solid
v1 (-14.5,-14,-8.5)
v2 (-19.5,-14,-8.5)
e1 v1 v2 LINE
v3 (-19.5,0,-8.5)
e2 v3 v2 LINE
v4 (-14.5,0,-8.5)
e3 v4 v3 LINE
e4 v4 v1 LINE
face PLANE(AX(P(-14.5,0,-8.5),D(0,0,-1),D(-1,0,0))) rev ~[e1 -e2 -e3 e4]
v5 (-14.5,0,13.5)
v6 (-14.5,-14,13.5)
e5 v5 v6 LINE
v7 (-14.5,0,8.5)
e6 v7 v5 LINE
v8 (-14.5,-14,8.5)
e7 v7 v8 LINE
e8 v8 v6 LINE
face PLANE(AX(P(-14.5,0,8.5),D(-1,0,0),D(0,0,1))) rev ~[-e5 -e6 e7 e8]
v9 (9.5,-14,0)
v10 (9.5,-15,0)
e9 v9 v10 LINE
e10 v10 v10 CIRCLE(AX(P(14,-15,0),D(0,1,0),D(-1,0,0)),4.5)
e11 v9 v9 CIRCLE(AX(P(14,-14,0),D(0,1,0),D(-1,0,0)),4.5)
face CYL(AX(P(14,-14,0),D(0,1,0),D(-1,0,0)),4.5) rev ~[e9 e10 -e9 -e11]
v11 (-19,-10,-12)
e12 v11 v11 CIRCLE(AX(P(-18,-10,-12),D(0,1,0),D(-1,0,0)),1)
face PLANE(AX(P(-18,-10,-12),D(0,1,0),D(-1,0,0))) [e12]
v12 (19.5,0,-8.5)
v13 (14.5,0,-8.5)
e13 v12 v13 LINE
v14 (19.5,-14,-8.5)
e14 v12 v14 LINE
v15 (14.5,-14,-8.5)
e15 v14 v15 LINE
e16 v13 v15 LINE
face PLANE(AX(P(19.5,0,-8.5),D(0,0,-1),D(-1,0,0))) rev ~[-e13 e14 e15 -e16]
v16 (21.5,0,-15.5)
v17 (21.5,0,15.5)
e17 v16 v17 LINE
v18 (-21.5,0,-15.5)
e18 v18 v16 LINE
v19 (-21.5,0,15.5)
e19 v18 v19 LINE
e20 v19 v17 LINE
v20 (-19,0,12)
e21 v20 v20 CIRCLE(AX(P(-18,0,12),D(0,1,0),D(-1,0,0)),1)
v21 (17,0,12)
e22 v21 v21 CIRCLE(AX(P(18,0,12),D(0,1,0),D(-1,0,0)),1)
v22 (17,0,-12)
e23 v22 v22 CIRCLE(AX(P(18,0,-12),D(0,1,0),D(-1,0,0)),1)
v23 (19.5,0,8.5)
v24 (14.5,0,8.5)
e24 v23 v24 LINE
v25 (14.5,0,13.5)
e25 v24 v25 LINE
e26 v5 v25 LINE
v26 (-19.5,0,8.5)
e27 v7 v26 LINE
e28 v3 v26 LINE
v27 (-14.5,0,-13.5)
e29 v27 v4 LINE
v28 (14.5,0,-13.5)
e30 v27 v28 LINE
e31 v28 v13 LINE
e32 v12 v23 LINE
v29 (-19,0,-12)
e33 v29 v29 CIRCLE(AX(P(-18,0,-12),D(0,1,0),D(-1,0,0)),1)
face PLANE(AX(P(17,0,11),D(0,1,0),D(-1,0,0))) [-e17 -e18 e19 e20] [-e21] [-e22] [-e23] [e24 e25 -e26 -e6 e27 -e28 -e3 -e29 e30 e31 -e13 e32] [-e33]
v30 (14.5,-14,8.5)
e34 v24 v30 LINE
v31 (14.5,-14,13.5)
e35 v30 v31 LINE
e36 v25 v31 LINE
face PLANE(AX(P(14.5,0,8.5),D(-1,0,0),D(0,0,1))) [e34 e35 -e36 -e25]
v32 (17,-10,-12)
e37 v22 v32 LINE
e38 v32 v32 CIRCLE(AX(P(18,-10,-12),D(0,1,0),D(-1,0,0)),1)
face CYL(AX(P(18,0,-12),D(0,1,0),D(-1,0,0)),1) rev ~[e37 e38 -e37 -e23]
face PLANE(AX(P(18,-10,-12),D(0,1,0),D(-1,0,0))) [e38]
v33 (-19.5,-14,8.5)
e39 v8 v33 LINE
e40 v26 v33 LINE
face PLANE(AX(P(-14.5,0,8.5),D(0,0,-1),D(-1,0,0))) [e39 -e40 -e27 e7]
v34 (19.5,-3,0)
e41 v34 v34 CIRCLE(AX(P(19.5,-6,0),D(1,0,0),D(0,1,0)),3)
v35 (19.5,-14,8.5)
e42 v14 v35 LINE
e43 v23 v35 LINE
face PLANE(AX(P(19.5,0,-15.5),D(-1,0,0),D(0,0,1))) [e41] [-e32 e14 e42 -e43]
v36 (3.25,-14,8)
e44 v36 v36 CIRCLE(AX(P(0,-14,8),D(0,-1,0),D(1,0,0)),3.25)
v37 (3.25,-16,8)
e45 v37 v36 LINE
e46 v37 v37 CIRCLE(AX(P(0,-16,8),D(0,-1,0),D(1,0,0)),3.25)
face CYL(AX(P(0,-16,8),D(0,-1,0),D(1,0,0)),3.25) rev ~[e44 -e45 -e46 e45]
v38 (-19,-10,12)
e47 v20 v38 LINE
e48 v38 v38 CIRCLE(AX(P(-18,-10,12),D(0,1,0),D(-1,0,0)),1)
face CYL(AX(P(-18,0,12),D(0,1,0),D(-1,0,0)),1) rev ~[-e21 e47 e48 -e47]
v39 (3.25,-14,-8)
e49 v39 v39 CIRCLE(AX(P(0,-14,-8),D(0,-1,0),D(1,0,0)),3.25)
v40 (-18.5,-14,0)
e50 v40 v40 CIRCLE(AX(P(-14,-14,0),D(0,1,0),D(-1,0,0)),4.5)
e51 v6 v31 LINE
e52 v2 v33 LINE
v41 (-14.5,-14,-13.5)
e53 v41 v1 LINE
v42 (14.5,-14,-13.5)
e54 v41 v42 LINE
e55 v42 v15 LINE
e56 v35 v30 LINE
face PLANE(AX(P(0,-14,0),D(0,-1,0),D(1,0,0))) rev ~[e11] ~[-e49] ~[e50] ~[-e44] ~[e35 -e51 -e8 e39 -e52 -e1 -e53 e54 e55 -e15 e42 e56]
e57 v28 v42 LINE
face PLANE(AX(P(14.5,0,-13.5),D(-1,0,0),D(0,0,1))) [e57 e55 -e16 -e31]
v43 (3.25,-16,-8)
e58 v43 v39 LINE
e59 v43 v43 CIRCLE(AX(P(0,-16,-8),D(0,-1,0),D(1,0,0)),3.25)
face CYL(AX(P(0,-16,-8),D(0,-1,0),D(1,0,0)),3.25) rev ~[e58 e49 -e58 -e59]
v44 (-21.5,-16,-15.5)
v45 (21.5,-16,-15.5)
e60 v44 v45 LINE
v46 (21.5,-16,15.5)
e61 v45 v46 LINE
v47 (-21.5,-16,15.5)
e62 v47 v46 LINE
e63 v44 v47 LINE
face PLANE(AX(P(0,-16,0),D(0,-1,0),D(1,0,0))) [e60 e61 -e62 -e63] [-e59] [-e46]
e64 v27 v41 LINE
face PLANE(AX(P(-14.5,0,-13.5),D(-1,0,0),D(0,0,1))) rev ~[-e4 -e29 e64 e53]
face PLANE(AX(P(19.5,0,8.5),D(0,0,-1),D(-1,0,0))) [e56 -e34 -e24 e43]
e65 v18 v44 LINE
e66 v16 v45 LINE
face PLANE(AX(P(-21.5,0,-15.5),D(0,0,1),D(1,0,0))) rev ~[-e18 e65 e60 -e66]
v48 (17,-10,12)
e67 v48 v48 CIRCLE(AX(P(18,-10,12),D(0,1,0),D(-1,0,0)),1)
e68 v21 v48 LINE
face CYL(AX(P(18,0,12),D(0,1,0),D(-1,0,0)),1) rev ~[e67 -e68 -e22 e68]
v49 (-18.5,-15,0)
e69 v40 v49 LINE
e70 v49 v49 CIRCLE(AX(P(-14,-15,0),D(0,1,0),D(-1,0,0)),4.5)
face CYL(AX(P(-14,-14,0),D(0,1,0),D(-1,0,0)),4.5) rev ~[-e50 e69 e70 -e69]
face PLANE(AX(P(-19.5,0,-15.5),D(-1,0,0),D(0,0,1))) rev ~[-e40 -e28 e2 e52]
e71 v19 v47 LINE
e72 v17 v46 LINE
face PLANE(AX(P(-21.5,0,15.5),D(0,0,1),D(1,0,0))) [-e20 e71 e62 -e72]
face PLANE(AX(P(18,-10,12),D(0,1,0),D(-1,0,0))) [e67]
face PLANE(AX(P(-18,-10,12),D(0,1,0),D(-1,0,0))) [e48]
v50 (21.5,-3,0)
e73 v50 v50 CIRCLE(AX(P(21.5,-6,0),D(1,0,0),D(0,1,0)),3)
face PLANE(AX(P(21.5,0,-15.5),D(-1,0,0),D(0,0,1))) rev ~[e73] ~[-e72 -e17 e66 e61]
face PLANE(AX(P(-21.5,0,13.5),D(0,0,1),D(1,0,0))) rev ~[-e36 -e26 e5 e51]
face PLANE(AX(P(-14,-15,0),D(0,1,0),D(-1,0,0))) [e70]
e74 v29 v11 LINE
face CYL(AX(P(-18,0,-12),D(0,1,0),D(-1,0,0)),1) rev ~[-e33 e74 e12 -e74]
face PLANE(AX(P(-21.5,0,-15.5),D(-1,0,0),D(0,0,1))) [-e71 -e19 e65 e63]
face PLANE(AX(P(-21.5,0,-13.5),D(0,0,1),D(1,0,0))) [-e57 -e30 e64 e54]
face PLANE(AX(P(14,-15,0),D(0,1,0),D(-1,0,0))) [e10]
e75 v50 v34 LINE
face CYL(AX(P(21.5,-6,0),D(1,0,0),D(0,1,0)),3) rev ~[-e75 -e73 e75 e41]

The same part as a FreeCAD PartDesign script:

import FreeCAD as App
import Part
import Sketcher

V = App.Vector


def faces_at(feature, points):
    """Names of the faces that lie closest to the given points."""
    faces = feature.Shape.Faces
    near = lambda p: min(range(len(faces)), key=lambda i: faces[i].distToShape(Part.Vertex(*p))[0])
    return sorted({f"Face{near(p) + 1}" for p in points})

doc = App.newDocument("Part")
body = doc.addObject("PartDesign::Body", "Body")

# Sketch on XZ plane
sketch1 = doc.addObject("Sketcher::SketchObject", "Sketch")
body.addObject(sketch1)
sketch1.AttachmentSupport = (doc.XZ_Plane, [""])
sketch1.MapMode = "FlatFace"
sketch1.addGeometry([
    Part.LineSegment(V(-21.5, 15.5, 0), V(-21.5, -15.5, 0)),
    Part.LineSegment(V(-21.5, -15.5, 0), V(21.5, -15.5, 0)),
    Part.LineSegment(V(21.5, -15.5, 0), V(21.5, 15.5, 0)),
    Part.LineSegment(V(21.5, 15.5, 0), V(-21.5, 15.5, 0)),
], False)
sketch1.addConstraint([
    Sketcher.Constraint("Coincident", 0, 2, 1, 1),
    Sketcher.Constraint("Coincident", 1, 2, 2, 1),
    Sketcher.Constraint("Coincident", 2, 2, 3, 1),
    Sketcher.Constraint("Coincident", 3, 2, 0, 1),
    Sketcher.Constraint("Vertical", 0),
    Sketcher.Constraint("Horizontal", 1),
    Sketcher.Constraint("Vertical", 2),
    Sketcher.Constraint("Horizontal", 3),
    Sketcher.Constraint("Symmetric", 0, 2, 2, 2, -1, 1),
    Sketcher.Constraint("DistanceX", 1, 1, 1, 2, 43.0),
    Sketcher.Constraint("DistanceY", 0, 2, 0, 1, 31.0),
])
pad1 = doc.addObject("PartDesign::Pad", "Pad")
body.addObject(pad1)
pad1.Profile = sketch1
pad1.Length = 16
doc.recompute()

thickness = doc.addObject("PartDesign::Thickness", "Thickness")
body.addObject(thickness)
thickness.Base = (pad1, faces_at(pad1, [(0, 0, 0)]))
thickness.Value = 2
thickness.Reversed = True
thickness.Join = "Arc"

# Sketch on XZ plane
sketch2 = doc.addObject("Sketcher::SketchObject", "Sketch001")
body.addObject(sketch2)
sketch2.AttachmentSupport = (doc.XZ_Plane, [""])
sketch2.MapMode = "FlatFace"
sketch2.AttachmentOffset = App.Placement(V(0, 0, 16), App.Rotation())
sketch2.addGeometry([
    Part.Circle(V(0, 8, 0), V(0, 0, 1), 3.25),
    Part.Circle(V(0, -8, 0), V(0, 0, 1), 3.25),
], False)
sketch2.addConstraint([
    Sketcher.Constraint("Equal", 0, 1),
    Sketcher.Constraint("Symmetric", 0, 3, 1, 3, -1, 1),
    Sketcher.Constraint("PointOnObject", 0, 3, -2),
    Sketcher.Constraint("Diameter", 0, 6.5),
    Sketcher.Constraint("DistanceY", -1, 1, 0, 3, 8.0),
])
pocket1 = doc.addObject("PartDesign::Pocket", "Pocket")
body.addObject(pocket1)
pocket1.Profile = sketch2
pocket1.Type = "ThroughAll"

# Sketch on YZ plane
sketch3 = doc.addObject("Sketcher::SketchObject", "Sketch002")
body.addObject(sketch3)
sketch3.AttachmentSupport = (doc.YZ_Plane, [""])
sketch3.MapMode = "FlatFace"
sketch3.AttachmentOffset = App.Placement(V(0, 0, 21.5), App.Rotation())
sketch3.addGeometry(Part.Circle(V(-6, 0, 0), V(0, 0, 1), 3), False)
sketch3.addConstraint([
    Sketcher.Constraint("PointOnObject", 0, 3, -1),
    Sketcher.Constraint("Diameter", 0, 6.0),
    Sketcher.Constraint("DistanceX", 0, 3, -1, 1, 6.0),
])
pocket2 = doc.addObject("PartDesign::Pocket", "Pocket001")
body.addObject(pocket2)
pocket2.Profile = sketch3
pocket2.Length = 7.6

# Sketch on XZ plane
sketch4 = doc.addObject("Sketcher::SketchObject", "Sketch003")
body.addObject(sketch4)
sketch4.AttachmentSupport = (doc.XZ_Plane, [""])
sketch4.MapMode = "FlatFace"
sketch4.addGeometry([
    Part.LineSegment(V(-14.5, 13.5, 0), V(-14.5, 8.5, 0)),
    Part.LineSegment(V(-14.5, 8.5, 0), V(-19.5, 8.5, 0)),
    Part.LineSegment(V(-19.5, 8.5, 0), V(-19.5, 13.5, 0)),
    Part.LineSegment(V(-19.5, 13.5, 0), V(-14.5, 13.5, 0)),
], False)
sketch4.addConstraint([
    Sketcher.Constraint("Coincident", 0, 2, 1, 1),
    Sketcher.Constraint("Coincident", 1, 2, 2, 1),
    Sketcher.Constraint("Coincident", 2, 2, 3, 1),
    Sketcher.Constraint("Coincident", 3, 2, 0, 1),
    Sketcher.Constraint("Vertical", 0),
    Sketcher.Constraint("Horizontal", 1),
    Sketcher.Constraint("Vertical", 2),
    Sketcher.Constraint("Horizontal", 3),
    Sketcher.Constraint("Equal", 3, 0),
    Sketcher.Constraint("DistanceX", 1, 2, 1, 1, 5.0),
    Sketcher.Constraint("DistanceX", 0, 2, -1, 1, 14.5),
    Sketcher.Constraint("DistanceY", -1, 1, 0, 2, 8.5),
])
pad2 = doc.addObject("PartDesign::Pad", "Pad001")
body.addObject(pad2)
pad2.Profile = sketch4
pad2.Type = "UpToLast"
body2 = doc.addObject("PartDesign::Body", "Body001")
body2.AllowCompound = True

# Sketch on XZ plane
sketch5 = doc.addObject("Sketcher::SketchObject", "Sketch004")
body2.addObject(sketch5)
sketch5.AttachmentSupport = (doc.getObject("XZ_Plane001"), [""])
sketch5.MapMode = "FlatFace"
sketch5.addGeometry([
    Part.LineSegment(V(-14.5, -8.5, 0), V(-14.5, -13.5, 0)),  # 0
    Part.LineSegment(V(-14.5, -13.5, 0), V(-19.5, -13.5, 0)),  # 1
    Part.LineSegment(V(-19.5, -13.5, 0), V(-19.5, -8.5, 0)),  # 2
    Part.LineSegment(V(-19.5, -8.5, 0), V(-14.5, -8.5, 0)),  # 3
    Part.LineSegment(V(19.5, -8.5, 0), V(19.5, -13.5, 0)),  # 4
    Part.LineSegment(V(19.5, -13.5, 0), V(14.5, -13.5, 0)),  # 5
    Part.LineSegment(V(14.5, -13.5, 0), V(14.5, -8.5, 0)),  # 6
    Part.LineSegment(V(14.5, -8.5, 0), V(19.5, -8.5, 0)),  # 7
    Part.LineSegment(V(19.5, 13.5, 0), V(19.5, 8.5, 0)),  # 8
    Part.LineSegment(V(19.5, 8.5, 0), V(14.5, 8.5, 0)),  # 9
    Part.LineSegment(V(14.5, 8.5, 0), V(14.5, 13.5, 0)),  # 10
    Part.LineSegment(V(14.5, 13.5, 0), V(19.5, 13.5, 0)),  # 11
], False)
sketch5.addConstraint([
    Sketcher.Constraint("Coincident", 0, 2, 1, 1),
    Sketcher.Constraint("Coincident", 1, 2, 2, 1),
    Sketcher.Constraint("Coincident", 2, 2, 3, 1),
    Sketcher.Constraint("Coincident", 3, 2, 0, 1),
    Sketcher.Constraint("Coincident", 4, 2, 5, 1),
    Sketcher.Constraint("Coincident", 5, 2, 6, 1),
    Sketcher.Constraint("Coincident", 6, 2, 7, 1),
    Sketcher.Constraint("Coincident", 7, 2, 4, 1),
    Sketcher.Constraint("Coincident", 8, 2, 9, 1),
    Sketcher.Constraint("Coincident", 9, 2, 10, 1),
    Sketcher.Constraint("Coincident", 10, 2, 11, 1),
    Sketcher.Constraint("Coincident", 11, 2, 8, 1),
    Sketcher.Constraint("Vertical", 0),
    Sketcher.Constraint("Horizontal", 1),
    Sketcher.Constraint("Vertical", 2),
    Sketcher.Constraint("Horizontal", 3),
    Sketcher.Constraint("Vertical", 4),
    Sketcher.Constraint("Horizontal", 5),
    Sketcher.Constraint("Vertical", 6),
    Sketcher.Constraint("Horizontal", 7),
    Sketcher.Constraint("Vertical", 8),
    Sketcher.Constraint("Horizontal", 9),
    Sketcher.Constraint("Vertical", 10),
    Sketcher.Constraint("Horizontal", 11),
    Sketcher.Constraint("Symmetric", 2, 2, 8, 2, -1, 1),
    Sketcher.Constraint("Symmetric", 0, 2, 10, 2, -1, 1),
    Sketcher.Constraint("Symmetric", 1, 2, 4, 2, -2),
    Sketcher.Constraint("Symmetric", 3, 2, 6, 2, -2),
    Sketcher.Constraint("Equal", 11, 0),
    Sketcher.Constraint("DistanceX", 1, 2, 1, 1, 5.0),
    Sketcher.Constraint("DistanceX", 0, 2, 4, 2, 34.0),
    Sketcher.Constraint("DistanceY", 7, 2, 8, 2, 17.0),
])
pad3 = doc.addObject("PartDesign::Pad", "Pad002")
body2.addObject(pad3)
pad3.Profile = sketch5
pad3.Length = 14
doc.recompute()

boolean = doc.addObject("PartDesign::Boolean", "Boolean")
body.addObject(boolean)
boolean.Type = "Fuse"
boolean.addObjects([body2])

# Sketch on XZ plane
sketch6 = doc.addObject("Sketcher::SketchObject", "Sketch005")
body.addObject(sketch6)
sketch6.AttachmentSupport = (doc.XZ_Plane, [""])
sketch6.MapMode = "FlatFace"
sketch6.addGeometry([
    Part.Circle(V(-18, 12, 0), V(0, 0, 1), 1),
    Part.Circle(V(-18, -12, 0), V(0, 0, 1), 1),
    Part.Circle(V(18, 12, 0), V(0, 0, 1), 1),
    Part.Circle(V(18, -12, 0), V(0, 0, 1), 1),
], False)
sketch6.addConstraint([
    Sketcher.Constraint("Equal", 0, 1),
    Sketcher.Constraint("Equal", 1, 2),
    Sketcher.Constraint("Equal", 2, 3),
    Sketcher.Constraint("Symmetric", 1, 3, 2, 3, -1, 1),
    Sketcher.Constraint("Symmetric", 0, 3, 3, 3, -1, 1),
    Sketcher.Constraint("Symmetric", 0, 3, 2, 3, -2),
    Sketcher.Constraint("Diameter", 0, 2.0),
    Sketcher.Constraint("DistanceX", 0, 3, -1, 1, 18.0),
    Sketcher.Constraint("DistanceY", -1, 1, 0, 3, 12.0),
])
pocket3 = doc.addObject("PartDesign::Pocket", "Pocket002")
body.addObject(pocket3)
pocket3.Profile = sketch6
pocket3.Length = 10
pocket3.Reversed = True

# Sketch on XZ plane
sketch7 = doc.addObject("Sketcher::SketchObject", "Sketch006")
body.addObject(sketch7)
sketch7.AttachmentSupport = (doc.XZ_Plane, [""])
sketch7.MapMode = "FlatFace"
sketch7.AttachmentOffset = App.Placement(V(0, 0, 14), App.Rotation())
sketch7.addGeometry([
    Part.Circle(V(14, 0, 0), V(0, 0, 1), 4.5),
    Part.Circle(V(-14, 0, 0), V(0, 0, 1), 4.5),
], False)
sketch7.addConstraint([
    Sketcher.Constraint("Equal", 0, 1),
    Sketcher.Constraint("Symmetric", 0, 3, 1, 3, -1, 1),
    Sketcher.Constraint("PointOnObject", 0, 3, -1),
    Sketcher.Constraint("Diameter", 0, 9.0),
    Sketcher.Constraint("DistanceX", -1, 1, 0, 3, 14.0),
])
pocket4 = doc.addObject("PartDesign::Pocket", "Pocket003")
body.addObject(pocket4)
pocket4.Profile = sketch7
pocket4.Length = 1
pocket4.Reversed = True

doc.recompute()
